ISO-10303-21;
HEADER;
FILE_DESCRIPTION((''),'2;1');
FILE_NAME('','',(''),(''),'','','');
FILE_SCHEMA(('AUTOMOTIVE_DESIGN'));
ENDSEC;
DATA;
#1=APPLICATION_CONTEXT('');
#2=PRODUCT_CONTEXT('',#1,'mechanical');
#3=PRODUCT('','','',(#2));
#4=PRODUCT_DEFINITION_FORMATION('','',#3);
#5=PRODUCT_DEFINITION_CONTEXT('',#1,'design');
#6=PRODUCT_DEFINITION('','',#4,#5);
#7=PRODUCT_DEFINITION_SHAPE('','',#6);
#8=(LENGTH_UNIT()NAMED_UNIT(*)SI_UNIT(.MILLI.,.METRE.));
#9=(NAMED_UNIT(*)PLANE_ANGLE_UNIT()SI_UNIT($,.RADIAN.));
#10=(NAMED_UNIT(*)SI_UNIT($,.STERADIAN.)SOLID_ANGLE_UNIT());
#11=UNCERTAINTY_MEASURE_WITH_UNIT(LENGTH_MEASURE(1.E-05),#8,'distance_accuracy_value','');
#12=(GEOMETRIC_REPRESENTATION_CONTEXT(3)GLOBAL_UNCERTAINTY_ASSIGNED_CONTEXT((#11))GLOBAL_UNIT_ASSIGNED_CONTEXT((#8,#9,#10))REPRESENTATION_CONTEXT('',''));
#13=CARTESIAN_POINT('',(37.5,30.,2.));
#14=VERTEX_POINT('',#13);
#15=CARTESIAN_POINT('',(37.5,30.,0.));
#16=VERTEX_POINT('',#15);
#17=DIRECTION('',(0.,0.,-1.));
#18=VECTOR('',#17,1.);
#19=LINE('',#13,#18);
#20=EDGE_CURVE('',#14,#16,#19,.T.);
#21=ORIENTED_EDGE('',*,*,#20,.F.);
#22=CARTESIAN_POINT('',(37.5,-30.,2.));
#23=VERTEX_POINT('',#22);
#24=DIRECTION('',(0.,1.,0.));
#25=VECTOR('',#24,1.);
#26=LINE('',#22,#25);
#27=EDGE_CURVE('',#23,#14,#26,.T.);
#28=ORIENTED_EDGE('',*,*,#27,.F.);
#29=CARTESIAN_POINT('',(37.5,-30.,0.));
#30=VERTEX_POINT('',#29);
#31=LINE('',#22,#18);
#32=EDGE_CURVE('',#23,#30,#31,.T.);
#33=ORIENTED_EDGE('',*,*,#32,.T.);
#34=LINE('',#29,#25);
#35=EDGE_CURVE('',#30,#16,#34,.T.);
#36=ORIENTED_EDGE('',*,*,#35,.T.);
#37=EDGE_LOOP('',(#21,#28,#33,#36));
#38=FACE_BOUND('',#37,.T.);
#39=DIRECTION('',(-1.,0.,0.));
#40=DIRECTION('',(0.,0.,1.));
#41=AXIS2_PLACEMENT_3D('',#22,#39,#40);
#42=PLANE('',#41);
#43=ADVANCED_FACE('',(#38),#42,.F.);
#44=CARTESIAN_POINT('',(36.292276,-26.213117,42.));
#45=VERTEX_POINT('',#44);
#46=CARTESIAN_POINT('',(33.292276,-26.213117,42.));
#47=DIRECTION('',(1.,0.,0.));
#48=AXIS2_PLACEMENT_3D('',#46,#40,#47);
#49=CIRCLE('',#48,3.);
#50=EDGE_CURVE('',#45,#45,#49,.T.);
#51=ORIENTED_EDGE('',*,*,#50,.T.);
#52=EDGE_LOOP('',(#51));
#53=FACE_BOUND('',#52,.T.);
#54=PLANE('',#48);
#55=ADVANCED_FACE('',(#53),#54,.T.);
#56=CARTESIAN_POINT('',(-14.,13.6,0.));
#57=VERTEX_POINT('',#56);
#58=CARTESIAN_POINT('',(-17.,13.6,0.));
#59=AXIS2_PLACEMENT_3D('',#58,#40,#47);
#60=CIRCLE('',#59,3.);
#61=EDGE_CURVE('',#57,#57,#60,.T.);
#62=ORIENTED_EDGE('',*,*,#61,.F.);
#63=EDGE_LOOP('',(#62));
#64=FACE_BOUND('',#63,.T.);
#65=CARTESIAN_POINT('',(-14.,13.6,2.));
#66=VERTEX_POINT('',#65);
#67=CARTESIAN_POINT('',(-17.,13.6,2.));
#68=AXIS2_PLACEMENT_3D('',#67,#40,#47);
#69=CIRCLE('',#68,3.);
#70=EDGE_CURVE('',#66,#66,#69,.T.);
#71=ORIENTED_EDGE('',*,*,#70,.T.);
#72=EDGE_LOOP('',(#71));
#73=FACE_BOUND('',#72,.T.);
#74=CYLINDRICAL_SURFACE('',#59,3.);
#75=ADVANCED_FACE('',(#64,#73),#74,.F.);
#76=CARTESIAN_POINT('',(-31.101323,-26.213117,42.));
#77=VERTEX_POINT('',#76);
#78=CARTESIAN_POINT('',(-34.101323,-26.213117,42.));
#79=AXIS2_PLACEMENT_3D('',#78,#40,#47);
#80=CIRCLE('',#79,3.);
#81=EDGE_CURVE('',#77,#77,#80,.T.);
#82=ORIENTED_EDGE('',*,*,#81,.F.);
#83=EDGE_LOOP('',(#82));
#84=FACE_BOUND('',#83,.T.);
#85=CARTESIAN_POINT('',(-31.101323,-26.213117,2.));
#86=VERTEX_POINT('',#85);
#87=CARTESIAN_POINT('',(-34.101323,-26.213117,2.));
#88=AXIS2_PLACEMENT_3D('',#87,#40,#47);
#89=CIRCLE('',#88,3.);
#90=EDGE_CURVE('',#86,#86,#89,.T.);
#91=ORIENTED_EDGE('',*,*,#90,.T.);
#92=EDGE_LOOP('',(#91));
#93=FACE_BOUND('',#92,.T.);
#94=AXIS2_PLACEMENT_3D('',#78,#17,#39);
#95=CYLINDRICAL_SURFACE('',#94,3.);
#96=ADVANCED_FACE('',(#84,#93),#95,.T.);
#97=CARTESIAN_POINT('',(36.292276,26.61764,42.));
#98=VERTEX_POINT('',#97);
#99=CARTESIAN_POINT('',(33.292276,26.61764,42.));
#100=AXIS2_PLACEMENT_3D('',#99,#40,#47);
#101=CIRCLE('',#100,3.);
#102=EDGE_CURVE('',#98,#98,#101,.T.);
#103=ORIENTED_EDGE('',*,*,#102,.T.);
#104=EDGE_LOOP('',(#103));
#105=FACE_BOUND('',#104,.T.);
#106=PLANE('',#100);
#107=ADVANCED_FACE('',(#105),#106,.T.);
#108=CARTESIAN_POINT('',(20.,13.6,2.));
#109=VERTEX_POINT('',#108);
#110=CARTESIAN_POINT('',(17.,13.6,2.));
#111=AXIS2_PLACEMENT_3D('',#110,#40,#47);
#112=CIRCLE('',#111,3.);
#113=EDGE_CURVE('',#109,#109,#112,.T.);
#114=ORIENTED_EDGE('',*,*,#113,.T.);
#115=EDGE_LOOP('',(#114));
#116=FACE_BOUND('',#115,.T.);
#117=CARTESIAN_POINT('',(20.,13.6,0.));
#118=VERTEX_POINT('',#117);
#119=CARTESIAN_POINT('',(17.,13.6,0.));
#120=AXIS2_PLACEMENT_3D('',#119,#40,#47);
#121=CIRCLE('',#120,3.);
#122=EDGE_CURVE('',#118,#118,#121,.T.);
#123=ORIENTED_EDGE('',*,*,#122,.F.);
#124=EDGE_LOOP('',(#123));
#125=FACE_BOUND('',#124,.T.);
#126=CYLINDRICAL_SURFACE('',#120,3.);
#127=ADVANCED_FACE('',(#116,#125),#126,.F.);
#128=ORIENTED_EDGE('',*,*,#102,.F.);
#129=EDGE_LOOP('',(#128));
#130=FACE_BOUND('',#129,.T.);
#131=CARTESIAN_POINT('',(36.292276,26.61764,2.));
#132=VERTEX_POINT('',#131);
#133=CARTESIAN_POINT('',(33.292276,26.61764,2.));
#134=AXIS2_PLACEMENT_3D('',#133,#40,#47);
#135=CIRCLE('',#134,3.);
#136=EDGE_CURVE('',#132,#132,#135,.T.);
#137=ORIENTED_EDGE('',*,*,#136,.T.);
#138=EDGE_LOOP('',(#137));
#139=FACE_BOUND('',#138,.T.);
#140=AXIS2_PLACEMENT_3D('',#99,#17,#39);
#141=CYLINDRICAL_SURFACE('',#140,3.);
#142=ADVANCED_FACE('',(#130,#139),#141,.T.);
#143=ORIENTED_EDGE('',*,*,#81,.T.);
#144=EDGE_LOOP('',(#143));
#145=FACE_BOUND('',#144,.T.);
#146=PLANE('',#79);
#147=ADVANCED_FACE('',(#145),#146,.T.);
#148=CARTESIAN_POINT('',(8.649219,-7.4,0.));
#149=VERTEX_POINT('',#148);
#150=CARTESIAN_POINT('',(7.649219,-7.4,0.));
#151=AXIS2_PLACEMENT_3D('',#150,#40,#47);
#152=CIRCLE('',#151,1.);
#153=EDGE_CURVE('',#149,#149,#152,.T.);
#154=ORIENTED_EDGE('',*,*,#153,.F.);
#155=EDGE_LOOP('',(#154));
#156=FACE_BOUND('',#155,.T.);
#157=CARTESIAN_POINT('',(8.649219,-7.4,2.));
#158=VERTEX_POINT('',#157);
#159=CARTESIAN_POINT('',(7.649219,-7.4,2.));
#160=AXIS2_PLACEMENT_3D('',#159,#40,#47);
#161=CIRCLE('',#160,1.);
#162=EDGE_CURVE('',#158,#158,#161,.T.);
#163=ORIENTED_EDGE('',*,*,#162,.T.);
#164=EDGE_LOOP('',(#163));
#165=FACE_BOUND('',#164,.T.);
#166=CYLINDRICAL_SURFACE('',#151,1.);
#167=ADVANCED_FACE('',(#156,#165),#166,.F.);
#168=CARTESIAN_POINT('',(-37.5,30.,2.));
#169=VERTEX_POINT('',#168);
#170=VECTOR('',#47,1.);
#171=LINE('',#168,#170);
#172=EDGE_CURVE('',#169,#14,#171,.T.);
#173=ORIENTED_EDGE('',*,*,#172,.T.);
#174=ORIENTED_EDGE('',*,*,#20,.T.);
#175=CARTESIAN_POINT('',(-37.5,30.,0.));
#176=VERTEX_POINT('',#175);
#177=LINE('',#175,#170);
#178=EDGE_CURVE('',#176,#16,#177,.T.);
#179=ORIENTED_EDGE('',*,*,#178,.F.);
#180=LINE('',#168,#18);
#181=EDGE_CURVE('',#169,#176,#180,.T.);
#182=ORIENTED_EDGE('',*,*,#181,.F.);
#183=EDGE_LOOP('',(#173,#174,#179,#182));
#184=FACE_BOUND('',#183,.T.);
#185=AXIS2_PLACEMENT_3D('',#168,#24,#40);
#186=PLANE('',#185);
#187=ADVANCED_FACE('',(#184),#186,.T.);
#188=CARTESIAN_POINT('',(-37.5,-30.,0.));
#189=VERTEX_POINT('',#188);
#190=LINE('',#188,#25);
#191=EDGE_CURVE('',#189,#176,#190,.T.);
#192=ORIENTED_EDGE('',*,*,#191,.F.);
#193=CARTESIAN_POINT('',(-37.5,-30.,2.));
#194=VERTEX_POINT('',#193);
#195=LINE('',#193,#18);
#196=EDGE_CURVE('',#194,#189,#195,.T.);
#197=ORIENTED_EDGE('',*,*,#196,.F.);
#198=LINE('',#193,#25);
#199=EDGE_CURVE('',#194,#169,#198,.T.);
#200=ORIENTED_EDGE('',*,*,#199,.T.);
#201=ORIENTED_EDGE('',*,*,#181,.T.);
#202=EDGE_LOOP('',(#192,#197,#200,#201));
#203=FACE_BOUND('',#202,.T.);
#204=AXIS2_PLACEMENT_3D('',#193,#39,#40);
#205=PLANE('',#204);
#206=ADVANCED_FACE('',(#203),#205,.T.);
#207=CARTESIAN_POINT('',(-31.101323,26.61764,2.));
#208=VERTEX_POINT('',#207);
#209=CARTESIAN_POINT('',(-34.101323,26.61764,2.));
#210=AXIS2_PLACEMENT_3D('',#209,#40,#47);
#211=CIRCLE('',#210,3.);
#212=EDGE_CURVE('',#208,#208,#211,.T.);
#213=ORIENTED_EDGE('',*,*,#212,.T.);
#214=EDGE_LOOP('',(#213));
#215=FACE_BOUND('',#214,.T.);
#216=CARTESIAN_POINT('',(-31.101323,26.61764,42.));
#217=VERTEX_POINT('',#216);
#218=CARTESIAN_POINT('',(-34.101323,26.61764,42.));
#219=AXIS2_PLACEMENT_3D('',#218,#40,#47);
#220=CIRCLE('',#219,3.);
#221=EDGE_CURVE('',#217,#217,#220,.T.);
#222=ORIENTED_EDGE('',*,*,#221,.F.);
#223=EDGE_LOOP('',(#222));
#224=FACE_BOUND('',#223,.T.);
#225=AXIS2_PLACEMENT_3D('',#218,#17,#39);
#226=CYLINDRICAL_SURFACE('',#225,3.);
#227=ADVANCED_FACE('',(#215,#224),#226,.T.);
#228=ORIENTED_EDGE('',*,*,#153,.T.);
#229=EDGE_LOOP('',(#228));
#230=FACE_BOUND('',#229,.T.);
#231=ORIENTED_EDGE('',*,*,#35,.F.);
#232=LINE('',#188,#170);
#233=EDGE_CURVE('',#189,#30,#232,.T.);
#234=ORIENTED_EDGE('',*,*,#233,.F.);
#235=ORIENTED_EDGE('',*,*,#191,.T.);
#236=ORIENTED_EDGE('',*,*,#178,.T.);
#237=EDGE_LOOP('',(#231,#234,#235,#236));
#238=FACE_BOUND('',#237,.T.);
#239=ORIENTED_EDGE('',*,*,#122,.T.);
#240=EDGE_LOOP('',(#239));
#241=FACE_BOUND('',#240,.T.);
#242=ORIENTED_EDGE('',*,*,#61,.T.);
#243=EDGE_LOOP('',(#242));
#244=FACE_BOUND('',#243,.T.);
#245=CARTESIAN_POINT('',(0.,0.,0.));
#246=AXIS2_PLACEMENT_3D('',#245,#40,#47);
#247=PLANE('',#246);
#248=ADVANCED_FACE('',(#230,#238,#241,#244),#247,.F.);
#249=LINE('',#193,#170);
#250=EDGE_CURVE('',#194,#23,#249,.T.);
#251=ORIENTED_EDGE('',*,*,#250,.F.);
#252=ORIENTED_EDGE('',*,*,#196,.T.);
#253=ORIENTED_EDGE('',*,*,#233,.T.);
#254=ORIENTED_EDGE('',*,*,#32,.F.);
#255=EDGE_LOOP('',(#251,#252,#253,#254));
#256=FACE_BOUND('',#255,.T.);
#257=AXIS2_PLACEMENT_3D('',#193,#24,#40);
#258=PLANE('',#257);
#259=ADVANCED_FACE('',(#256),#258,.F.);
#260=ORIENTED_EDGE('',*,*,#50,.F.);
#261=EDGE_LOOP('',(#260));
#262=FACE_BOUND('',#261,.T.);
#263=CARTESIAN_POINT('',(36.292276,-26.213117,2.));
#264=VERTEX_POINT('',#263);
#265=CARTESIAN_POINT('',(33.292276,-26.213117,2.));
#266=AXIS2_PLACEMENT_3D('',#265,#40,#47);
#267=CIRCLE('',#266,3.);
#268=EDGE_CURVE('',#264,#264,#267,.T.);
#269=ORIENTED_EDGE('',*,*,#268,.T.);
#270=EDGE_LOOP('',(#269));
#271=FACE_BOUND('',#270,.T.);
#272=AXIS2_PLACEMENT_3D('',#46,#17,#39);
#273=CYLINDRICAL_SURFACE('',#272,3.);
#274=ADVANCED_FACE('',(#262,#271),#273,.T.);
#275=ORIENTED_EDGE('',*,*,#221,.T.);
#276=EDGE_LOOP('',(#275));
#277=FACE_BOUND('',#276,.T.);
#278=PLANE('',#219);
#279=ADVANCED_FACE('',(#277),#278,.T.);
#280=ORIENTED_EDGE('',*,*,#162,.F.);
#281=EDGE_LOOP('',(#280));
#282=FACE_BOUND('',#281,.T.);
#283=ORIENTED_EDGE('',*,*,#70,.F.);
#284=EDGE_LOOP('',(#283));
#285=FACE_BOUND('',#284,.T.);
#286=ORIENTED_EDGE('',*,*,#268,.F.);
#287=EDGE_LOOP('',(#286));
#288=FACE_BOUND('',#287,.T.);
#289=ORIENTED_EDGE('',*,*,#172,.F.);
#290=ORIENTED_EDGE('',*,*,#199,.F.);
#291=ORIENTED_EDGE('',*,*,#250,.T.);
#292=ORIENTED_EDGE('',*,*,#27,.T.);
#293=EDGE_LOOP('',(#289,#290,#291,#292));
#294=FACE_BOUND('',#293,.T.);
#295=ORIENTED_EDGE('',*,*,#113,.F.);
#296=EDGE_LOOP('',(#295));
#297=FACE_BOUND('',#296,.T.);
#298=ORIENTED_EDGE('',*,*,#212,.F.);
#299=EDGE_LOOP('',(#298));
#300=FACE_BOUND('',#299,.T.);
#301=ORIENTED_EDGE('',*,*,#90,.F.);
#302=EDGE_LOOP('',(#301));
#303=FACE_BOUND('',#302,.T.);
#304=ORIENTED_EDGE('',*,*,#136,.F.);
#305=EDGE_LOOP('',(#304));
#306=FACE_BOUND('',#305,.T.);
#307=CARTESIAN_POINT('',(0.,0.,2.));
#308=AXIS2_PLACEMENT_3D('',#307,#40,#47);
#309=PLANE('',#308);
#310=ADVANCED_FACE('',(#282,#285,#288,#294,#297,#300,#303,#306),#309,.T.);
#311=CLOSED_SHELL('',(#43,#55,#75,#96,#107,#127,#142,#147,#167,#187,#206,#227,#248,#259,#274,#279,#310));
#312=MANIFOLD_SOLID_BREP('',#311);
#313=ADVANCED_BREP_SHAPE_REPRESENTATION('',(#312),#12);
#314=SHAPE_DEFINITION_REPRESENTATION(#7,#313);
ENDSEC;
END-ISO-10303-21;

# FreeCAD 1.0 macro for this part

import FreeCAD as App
import Part
import Sketcher
Q = App.Units.Quantity

doc = App.newDocument("Part")
body = doc.addObject("PartDesign::Body", "Body")

sketch1 = body.newObject("Sketcher::SketchObject", "Sketch")
sketch1.AttachmentSupport = (doc.getObject("XY_Plane"), [""])
sketch1.MapMode = "FlatFace"
sketch1.addGeometry([
    Part.LineSegment(App.Vector(-38, 30, 0), App.Vector(-38, -30, 0)),
    Part.LineSegment(App.Vector(-38, -30, 0), App.Vector(38, -30, 0)),
    Part.LineSegment(App.Vector(38, -30, 0), App.Vector(38, 30, 0)),
    Part.LineSegment(App.Vector(38, 30, 0), App.Vector(-38, 30, 0)),
], False)
sketch1.addConstraint([
    Sketcher.Constraint("Coincident", 0, 2, 1, 1),
    Sketcher.Constraint("Coincident", 1, 2, 2, 1),
    Sketcher.Constraint("Coincident", 2, 2, 3, 1),
    Sketcher.Constraint("Coincident", 3, 2, 0, 1),
    Sketcher.Constraint("Vertical", 0),
    Sketcher.Constraint("Horizontal", 1),
    Sketcher.Constraint("Vertical", 2),
    Sketcher.Constraint("Horizontal", 3),
    Sketcher.Constraint("Symmetric", 0, 2, 2, 2, -1, 1),
    Sketcher.Constraint("DistanceX", 1, 1, 1, 2, Q("75 mm")),
    Sketcher.Constraint("DistanceY", 0, 2, 0, 1, Q("60 mm")),
])
pad1 = body.newObject("PartDesign::Pad", "Pad")
pad1.Profile = sketch1
pad1.Length = 2

sketch2 = body.newObject("Sketcher::SketchObject", "Sketch001")
sketch2.AttachmentSupport = (doc.getObject("XY_Plane"), [""])
sketch2.MapMode = "FlatFace"
sketch2.AttachmentOffset = App.Placement(App.Vector(0, 0, 2), App.Rotation())
sketch2.addGeometry([
    Part.Circle(App.Vector(-17, 13.6, 0), App.Vector(0, 0, 1), 3),
    Part.Circle(App.Vector(17, 13.6, 0), App.Vector(0, 0, 1), 3),
    Part.Circle(App.Vector(7.6, -7.4, 0), App.Vector(0, 0, 1), 1),
], False)
sketch2.addConstraint([
    Sketcher.Constraint("Equal", 0, 1),
    Sketcher.Constraint("Symmetric", 0, 3, 1, 3, -2),
    Sketcher.Constraint("Diameter", 0, Q("6 mm")),
    Sketcher.Constraint("Diameter", 2, Q("2 mm")),
    Sketcher.Constraint("DistanceX", 0, 3, -1, 1, Q("17 mm")),
    Sketcher.Constraint("DistanceY", 2, 3, 1, 3, Q("21 mm")),
    Sketcher.Constraint("DistanceY", -1, 1, 0, 3, Q("13.6 mm")),
    Sketcher.Constraint("DistanceX", -1, 1, 2, 3, Q("7.649219 mm")),
])
pocket1 = body.newObject("PartDesign::Pocket", "Pocket")
pocket1.Profile = sketch2
pocket1.Length = 2

sketch3 = body.newObject("Sketcher::SketchObject", "Sketch002")
sketch3.AttachmentSupport = (doc.getObject("XY_Plane"), [""])
sketch3.MapMode = "FlatFace"
sketch3.AttachmentOffset = App.Placement(App.Vector(0, 0, 2), App.Rotation())
sketch3.addGeometry([
    Part.Circle(App.Vector(-34.1, 26.6, 0), App.Vector(0, 0, 1), 3),
    Part.Circle(App.Vector(33.3, 26.6, 0), App.Vector(0, 0, 1), 3),
    Part.Circle(App.Vector(33.3, -26.2, 0), App.Vector(0, 0, 1), 3),
    Part.Circle(App.Vector(-34.1, -26.2, 0), App.Vector(0, 0, 1), 3),
], False)
sketch3.addConstraint([
    Sketcher.Constraint("Equal", 0, 1),
    Sketcher.Constraint("Equal", 1, 2),
    Sketcher.Constraint("Equal", 2, 3),
    Sketcher.Constraint("Horizontal", 0, 3, 1, 3),
    Sketcher.Constraint("Horizontal", 2, 3, 3, 3),
    Sketcher.Constraint("Vertical", 1, 3, 2, 3),
    Sketcher.Constraint("Vertical", 0, 3, 3, 3),
    Sketcher.Constraint("Diameter", 0, Q("6 mm")),
    Sketcher.Constraint("DistanceX", 0, 3, 1, 3, Q("67.393599 mm")),
    Sketcher.Constraint("DistanceY", -1, 1, 0, 3, Q("26.61764 mm")),
    Sketcher.Constraint("DistanceX", 0, 3, -1, 1, Q("34.101323 mm")),
    Sketcher.Constraint("DistanceY", 2, 3, -1, 1, Q("26.213117 mm")),
])
pad2 = body.newObject("PartDesign::Pad", "Pad001")
pad2.Profile = sketch3
pad2.Length = 40

doc.recompute()
